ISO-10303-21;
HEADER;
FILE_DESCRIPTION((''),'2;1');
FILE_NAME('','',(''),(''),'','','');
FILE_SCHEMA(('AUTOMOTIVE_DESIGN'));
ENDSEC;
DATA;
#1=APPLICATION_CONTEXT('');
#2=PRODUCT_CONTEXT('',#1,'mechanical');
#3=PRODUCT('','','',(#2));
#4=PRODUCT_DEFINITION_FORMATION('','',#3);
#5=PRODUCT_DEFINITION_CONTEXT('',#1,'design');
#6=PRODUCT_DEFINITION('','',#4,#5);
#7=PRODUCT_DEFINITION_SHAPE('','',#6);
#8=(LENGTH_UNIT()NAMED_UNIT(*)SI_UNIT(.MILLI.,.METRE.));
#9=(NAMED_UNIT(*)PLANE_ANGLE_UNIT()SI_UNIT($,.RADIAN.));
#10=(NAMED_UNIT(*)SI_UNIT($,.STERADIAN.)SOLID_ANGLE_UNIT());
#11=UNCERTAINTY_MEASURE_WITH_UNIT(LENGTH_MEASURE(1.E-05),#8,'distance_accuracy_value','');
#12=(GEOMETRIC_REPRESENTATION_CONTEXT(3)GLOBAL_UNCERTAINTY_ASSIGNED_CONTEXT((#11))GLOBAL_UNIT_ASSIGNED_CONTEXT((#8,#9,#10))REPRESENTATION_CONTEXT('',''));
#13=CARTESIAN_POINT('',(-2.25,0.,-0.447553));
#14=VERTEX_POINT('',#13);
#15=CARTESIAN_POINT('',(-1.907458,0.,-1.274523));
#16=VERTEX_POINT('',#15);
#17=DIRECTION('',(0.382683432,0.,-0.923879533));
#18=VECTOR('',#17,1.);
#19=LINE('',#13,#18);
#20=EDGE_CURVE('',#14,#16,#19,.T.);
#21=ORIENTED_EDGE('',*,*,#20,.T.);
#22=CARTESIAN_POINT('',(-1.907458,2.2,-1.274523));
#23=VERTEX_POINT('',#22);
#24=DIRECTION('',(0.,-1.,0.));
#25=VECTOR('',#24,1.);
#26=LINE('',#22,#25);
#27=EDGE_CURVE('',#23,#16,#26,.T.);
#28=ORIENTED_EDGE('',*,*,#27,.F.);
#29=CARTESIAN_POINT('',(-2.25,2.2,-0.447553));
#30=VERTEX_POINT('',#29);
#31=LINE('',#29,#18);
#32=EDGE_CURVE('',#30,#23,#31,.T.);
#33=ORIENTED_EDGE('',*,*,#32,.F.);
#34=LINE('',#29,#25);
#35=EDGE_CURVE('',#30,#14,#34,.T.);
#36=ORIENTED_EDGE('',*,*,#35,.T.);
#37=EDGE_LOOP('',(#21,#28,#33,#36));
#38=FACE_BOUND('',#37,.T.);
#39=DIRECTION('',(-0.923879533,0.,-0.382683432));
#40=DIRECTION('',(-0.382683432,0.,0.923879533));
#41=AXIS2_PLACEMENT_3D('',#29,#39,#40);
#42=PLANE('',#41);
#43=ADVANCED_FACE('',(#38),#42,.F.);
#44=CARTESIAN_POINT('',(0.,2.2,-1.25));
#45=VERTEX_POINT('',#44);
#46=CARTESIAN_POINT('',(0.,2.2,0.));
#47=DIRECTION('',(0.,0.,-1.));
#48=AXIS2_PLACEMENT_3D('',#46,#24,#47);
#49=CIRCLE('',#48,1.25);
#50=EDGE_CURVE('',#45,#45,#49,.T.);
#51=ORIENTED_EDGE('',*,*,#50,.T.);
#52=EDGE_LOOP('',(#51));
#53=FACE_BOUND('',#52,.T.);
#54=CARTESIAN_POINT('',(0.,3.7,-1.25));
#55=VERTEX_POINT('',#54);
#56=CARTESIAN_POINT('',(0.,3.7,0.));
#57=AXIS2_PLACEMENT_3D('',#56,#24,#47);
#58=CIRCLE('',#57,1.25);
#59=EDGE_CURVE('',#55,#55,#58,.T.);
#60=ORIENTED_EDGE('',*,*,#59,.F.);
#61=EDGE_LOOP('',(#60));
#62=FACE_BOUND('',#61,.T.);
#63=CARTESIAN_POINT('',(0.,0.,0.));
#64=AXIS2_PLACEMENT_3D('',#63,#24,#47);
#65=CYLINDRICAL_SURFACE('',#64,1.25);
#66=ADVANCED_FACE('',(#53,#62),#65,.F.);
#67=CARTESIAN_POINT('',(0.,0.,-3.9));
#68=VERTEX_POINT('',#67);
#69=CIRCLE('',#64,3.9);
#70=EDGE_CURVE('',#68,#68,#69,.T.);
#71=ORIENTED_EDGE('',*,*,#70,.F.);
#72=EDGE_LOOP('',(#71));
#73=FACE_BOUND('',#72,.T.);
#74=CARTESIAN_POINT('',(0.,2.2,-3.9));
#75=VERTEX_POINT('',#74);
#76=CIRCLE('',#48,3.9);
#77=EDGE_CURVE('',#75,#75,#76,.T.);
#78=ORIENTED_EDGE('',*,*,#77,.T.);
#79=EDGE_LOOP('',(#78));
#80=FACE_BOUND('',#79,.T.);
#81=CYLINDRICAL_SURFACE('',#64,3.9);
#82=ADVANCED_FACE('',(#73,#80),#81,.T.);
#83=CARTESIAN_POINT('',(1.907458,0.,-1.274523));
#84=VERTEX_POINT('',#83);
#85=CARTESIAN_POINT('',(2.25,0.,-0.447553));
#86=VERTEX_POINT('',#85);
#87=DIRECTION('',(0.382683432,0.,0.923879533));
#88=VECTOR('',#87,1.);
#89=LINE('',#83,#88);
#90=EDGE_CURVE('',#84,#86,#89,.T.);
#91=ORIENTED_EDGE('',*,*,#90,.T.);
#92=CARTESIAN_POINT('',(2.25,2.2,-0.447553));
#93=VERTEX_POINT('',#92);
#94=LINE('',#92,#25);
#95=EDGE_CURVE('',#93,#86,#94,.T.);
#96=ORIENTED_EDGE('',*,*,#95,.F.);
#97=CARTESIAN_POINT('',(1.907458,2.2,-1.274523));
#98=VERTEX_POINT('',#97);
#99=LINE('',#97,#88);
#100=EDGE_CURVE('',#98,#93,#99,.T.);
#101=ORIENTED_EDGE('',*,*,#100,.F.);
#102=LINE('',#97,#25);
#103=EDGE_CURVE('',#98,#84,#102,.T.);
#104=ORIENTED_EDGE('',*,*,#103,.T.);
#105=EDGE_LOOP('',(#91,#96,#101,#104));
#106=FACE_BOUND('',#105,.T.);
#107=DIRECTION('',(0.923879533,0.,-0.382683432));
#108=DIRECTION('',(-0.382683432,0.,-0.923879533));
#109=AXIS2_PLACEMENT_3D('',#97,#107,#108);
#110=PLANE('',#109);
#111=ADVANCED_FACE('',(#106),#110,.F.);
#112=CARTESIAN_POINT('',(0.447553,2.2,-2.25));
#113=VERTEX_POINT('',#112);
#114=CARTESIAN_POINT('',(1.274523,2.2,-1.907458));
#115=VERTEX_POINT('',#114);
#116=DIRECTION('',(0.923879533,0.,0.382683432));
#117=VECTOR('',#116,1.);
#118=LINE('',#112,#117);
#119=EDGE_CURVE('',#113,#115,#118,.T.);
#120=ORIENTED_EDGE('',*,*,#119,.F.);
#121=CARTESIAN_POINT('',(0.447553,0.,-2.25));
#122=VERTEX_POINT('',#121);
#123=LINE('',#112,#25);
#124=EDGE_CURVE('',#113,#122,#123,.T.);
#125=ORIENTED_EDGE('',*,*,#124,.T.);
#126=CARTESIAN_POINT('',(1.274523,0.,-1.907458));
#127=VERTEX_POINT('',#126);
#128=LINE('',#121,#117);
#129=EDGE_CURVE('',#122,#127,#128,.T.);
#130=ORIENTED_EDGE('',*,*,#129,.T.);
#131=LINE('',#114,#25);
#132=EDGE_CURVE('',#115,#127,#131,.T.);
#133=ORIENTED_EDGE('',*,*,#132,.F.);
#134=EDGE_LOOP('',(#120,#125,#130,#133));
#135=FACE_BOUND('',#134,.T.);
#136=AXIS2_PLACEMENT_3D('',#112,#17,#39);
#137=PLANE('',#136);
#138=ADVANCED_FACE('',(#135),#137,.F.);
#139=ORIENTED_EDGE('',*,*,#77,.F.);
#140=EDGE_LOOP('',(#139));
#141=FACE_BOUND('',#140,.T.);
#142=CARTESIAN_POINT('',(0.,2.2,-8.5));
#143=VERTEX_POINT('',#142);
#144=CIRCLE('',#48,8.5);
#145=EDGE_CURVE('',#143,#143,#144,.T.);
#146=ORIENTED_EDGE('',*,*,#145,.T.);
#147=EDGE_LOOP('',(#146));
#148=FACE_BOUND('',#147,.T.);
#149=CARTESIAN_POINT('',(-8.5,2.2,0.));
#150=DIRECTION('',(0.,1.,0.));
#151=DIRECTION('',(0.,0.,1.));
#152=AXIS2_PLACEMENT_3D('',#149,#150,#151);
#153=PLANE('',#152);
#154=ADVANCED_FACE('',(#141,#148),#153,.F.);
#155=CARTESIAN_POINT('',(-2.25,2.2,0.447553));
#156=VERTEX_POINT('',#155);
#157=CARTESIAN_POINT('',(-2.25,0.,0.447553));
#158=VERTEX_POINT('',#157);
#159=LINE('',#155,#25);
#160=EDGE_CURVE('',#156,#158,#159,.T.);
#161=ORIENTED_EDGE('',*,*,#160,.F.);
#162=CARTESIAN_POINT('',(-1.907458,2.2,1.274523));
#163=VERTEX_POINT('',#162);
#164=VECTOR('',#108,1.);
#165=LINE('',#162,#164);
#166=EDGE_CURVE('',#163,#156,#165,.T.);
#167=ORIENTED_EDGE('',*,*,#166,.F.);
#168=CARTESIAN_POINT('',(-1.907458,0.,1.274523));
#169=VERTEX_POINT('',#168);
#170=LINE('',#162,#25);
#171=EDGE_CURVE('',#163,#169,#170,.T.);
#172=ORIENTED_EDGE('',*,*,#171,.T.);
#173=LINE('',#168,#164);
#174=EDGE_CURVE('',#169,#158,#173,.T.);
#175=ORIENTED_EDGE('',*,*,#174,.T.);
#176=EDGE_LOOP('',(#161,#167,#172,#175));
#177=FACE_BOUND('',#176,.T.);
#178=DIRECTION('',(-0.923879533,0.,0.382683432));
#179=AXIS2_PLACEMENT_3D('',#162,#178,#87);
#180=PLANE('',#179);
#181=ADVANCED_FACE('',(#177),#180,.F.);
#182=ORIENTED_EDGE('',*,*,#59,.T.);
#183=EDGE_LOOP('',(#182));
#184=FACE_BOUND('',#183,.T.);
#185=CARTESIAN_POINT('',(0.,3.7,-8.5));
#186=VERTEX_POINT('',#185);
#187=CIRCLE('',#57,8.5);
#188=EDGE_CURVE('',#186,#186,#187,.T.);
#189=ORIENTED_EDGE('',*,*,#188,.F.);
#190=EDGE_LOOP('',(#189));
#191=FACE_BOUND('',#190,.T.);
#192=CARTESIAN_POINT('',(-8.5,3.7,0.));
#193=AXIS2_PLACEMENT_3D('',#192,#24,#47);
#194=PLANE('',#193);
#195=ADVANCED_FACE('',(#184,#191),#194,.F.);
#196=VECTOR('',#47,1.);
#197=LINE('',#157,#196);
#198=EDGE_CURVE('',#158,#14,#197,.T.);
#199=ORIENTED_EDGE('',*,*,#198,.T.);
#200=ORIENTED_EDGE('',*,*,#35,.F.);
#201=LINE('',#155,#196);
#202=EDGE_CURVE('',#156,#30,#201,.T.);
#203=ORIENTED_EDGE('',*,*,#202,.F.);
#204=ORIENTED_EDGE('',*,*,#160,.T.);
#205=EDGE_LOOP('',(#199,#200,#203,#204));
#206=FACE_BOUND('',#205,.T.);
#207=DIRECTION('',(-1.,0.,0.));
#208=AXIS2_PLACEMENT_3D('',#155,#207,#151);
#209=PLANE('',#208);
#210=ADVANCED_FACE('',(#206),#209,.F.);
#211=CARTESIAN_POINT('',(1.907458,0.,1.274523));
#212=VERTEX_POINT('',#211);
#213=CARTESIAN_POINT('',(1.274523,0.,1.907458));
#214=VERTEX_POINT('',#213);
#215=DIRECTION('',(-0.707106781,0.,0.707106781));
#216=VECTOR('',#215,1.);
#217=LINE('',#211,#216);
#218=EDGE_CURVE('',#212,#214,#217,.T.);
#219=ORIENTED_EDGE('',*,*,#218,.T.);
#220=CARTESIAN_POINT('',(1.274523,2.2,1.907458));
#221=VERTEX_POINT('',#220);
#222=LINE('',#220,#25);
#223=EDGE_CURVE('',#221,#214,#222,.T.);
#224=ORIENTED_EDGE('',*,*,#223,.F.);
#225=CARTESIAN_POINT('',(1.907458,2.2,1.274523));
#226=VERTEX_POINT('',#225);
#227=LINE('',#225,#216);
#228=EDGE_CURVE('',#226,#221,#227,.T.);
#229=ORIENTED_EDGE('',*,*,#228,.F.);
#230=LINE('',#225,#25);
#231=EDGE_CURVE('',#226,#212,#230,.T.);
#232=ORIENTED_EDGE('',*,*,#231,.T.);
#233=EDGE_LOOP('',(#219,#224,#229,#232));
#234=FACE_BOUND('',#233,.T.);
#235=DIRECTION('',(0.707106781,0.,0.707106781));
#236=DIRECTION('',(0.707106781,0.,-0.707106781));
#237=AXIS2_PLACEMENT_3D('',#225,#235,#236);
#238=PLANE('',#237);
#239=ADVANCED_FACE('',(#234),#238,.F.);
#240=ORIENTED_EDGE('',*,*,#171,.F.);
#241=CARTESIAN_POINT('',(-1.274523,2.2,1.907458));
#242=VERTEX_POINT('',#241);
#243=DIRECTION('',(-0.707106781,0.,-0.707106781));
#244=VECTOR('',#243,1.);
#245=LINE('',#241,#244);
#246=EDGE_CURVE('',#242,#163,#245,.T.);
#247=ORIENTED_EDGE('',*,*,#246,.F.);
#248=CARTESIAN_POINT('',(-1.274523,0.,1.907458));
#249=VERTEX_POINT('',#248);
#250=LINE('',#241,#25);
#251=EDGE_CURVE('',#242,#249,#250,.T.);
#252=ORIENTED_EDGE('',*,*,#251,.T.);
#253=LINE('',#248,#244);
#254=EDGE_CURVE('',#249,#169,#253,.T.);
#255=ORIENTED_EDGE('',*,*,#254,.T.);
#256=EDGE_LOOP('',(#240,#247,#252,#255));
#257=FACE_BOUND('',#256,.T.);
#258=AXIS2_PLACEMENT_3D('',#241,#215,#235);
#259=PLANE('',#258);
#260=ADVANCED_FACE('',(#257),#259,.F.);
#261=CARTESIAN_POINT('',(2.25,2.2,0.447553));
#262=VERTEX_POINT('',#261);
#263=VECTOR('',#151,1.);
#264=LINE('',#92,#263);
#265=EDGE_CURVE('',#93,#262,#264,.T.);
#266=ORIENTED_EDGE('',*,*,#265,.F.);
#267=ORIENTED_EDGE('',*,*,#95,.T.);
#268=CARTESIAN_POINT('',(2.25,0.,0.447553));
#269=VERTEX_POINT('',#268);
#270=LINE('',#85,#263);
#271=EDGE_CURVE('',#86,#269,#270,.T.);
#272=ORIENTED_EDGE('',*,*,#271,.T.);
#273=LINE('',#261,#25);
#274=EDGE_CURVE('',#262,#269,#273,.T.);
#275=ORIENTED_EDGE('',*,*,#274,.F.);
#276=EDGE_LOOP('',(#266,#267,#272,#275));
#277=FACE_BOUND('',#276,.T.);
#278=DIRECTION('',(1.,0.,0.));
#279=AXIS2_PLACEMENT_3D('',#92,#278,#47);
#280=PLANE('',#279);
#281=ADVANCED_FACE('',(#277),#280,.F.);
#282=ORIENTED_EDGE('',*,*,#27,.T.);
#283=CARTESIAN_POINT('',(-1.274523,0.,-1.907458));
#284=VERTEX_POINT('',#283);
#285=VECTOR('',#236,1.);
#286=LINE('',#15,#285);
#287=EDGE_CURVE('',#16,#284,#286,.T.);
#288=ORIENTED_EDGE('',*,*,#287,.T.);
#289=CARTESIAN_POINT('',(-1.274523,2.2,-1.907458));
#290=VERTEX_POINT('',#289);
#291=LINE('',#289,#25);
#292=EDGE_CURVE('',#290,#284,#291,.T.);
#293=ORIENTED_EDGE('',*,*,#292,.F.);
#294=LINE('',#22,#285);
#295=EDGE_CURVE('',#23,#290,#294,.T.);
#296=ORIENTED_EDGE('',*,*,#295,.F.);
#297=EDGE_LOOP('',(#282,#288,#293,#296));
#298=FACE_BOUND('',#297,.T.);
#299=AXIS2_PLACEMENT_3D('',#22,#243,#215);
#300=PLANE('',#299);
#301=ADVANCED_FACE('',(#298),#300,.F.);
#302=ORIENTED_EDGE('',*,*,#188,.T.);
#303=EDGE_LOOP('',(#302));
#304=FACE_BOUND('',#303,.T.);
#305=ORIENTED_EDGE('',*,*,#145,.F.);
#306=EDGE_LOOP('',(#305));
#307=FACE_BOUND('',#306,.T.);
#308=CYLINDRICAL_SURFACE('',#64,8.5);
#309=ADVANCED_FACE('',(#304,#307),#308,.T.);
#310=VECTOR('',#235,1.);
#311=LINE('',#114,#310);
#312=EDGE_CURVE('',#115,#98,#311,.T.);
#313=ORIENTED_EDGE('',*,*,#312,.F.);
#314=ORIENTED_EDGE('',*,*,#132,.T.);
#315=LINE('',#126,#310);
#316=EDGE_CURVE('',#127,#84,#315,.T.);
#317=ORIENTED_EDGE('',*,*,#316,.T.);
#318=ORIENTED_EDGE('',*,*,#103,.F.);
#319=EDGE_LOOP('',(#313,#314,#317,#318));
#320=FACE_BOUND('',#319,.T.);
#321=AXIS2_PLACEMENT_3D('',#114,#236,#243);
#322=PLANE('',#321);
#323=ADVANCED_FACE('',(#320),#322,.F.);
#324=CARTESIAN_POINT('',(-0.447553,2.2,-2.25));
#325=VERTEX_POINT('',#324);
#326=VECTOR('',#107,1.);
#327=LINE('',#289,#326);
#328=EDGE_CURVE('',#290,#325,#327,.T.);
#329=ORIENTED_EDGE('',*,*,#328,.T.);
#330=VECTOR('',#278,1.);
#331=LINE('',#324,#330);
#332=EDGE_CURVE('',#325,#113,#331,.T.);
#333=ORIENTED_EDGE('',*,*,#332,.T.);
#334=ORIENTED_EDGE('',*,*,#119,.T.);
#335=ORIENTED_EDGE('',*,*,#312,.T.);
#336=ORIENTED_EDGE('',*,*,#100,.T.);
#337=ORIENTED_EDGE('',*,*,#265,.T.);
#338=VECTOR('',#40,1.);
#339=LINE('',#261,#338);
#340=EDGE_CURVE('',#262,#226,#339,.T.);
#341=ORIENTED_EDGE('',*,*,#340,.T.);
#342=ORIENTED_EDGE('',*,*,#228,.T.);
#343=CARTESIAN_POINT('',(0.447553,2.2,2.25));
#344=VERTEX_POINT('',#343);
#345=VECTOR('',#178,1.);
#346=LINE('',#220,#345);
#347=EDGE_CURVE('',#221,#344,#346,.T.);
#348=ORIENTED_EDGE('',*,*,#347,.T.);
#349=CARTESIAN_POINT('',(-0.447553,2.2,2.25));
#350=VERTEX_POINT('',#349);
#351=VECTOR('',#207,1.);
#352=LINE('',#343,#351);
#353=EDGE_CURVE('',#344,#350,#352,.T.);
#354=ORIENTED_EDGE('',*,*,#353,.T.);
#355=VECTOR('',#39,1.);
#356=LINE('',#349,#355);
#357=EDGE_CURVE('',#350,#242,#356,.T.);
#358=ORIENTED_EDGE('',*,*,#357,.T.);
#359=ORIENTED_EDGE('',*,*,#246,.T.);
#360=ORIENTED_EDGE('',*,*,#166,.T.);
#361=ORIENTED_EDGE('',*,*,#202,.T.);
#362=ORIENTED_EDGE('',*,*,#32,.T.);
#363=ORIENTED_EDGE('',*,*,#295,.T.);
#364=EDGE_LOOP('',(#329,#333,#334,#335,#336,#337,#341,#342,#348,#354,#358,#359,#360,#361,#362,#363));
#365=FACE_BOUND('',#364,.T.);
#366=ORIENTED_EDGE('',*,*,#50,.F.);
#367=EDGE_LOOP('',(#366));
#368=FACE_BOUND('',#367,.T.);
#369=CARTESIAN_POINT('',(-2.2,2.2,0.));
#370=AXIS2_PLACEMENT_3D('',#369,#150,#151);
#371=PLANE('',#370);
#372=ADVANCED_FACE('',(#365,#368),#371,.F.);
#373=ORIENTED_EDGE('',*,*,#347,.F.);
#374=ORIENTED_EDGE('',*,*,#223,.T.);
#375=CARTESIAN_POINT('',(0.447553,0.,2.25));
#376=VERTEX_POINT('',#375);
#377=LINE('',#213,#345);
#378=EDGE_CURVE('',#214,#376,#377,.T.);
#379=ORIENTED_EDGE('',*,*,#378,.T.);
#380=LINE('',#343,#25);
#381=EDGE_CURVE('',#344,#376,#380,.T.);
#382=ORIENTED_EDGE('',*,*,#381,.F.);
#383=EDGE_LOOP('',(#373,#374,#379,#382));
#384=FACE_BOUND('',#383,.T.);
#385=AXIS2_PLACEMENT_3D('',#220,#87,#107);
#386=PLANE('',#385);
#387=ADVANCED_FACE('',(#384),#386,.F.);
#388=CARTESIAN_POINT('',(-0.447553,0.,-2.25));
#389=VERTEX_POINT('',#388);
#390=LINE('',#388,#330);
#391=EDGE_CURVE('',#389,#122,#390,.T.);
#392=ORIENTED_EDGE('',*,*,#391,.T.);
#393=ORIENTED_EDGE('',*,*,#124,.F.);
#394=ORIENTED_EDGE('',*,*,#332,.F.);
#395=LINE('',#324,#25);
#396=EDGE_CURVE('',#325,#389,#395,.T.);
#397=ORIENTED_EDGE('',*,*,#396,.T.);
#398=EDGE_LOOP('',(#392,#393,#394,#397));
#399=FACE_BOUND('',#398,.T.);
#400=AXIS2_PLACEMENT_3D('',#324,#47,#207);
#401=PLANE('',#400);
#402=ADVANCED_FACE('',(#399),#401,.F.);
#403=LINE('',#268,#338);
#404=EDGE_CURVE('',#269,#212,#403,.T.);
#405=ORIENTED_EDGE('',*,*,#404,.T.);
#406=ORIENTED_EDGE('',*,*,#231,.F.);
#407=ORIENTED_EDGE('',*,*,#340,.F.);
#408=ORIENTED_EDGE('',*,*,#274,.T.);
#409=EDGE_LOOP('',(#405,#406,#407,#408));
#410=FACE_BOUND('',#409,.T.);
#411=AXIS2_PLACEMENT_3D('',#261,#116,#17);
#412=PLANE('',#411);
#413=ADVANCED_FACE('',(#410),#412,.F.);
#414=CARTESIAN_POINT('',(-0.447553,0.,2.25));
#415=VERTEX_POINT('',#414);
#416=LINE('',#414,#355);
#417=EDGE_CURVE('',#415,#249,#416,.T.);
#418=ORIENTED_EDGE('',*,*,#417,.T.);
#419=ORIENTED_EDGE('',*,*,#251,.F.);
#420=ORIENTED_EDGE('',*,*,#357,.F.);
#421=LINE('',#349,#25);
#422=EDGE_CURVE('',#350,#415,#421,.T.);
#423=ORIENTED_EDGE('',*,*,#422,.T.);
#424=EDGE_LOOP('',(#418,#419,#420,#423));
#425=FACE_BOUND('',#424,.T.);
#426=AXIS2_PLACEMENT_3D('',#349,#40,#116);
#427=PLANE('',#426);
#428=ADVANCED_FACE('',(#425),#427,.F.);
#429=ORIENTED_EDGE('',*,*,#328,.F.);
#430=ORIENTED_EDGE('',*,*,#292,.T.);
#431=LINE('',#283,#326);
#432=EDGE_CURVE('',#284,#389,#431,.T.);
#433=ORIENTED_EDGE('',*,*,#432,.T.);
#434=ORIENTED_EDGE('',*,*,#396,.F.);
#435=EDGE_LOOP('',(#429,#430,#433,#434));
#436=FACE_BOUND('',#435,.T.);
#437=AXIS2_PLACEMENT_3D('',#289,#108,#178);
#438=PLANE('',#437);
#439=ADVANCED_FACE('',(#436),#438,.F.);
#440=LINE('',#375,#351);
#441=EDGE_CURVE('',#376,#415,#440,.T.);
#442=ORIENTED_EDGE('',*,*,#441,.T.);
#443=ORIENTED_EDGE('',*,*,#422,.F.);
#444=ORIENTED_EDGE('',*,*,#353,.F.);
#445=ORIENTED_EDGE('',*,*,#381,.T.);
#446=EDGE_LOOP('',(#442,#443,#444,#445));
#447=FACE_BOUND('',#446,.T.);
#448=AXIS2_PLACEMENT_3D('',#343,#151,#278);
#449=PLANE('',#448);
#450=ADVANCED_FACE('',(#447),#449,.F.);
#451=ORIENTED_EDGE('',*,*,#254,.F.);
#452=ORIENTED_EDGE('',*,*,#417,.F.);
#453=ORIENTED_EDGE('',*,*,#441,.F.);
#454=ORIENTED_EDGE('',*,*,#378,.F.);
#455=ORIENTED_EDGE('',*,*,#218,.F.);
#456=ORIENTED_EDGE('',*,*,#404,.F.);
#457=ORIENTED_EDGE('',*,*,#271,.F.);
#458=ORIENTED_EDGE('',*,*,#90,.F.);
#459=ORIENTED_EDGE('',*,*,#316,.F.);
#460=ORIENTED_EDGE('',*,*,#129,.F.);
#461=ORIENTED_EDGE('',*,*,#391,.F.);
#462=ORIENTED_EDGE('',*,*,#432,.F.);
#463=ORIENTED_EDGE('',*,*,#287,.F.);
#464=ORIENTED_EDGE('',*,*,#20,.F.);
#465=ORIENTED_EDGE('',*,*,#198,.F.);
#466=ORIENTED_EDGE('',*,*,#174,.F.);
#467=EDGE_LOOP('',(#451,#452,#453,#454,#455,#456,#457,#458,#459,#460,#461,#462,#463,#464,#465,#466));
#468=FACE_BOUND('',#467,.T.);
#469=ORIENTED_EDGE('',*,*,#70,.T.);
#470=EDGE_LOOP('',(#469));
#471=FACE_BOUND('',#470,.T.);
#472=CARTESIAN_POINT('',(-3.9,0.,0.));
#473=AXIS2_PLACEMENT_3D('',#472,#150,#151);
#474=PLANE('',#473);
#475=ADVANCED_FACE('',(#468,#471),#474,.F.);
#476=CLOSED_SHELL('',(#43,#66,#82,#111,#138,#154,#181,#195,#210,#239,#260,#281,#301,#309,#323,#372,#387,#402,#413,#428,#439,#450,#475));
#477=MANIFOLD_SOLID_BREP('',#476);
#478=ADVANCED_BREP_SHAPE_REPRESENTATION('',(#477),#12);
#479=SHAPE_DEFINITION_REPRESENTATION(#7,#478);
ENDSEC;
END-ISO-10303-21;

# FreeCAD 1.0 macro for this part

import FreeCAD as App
import Part
import Sketcher
Q = App.Units.Quantity


def add_polygon(sketch, points):
    """Adds a closed chain of lines whose ends are joined by coincident constraints."""
    first, n = sketch.GeometryCount, len(points)
    for a, b in zip(points, points[1:] + points[:1]):
        sketch.addGeometry(Part.LineSegment(App.Vector(*a, 0), App.Vector(*b, 0)), False)
    for i in range(n):
        sketch.addConstraint(Sketcher.Constraint("Coincident", first + i, 2, first + (i + 1) % n, 1))

doc = App.newDocument("Part")
body = doc.addObject("PartDesign::Body", "Body")

sketch1 = doc.addObject("Sketcher::SketchObject", "Sketch")
body.addObject(sketch1)
sketch1.AttachmentSupport = (doc.XY_Plane, [""])
sketch1.MapMode = "FlatFace"
add_polygon(sketch1, [(-1.2, 3.7), (-8.5, 3.7), (-8.5, 2.2), (-3.9, 2.2), (-3.9, 0), (-2.2, 0), (-2.2, 2.2), (-1.2, 2.2)])
sketch1.addConstraint([
    Sketcher.Constraint("Horizontal", 0),
    Sketcher.Constraint("Vertical", 1),
    Sketcher.Constraint("Horizontal", 2),
    Sketcher.Constraint("Vertical", 3),
    Sketcher.Constraint("Horizontal", 4),
    Sketcher.Constraint("Vertical", 5),
    Sketcher.Constraint("Horizontal", 6),
    Sketcher.Constraint("Vertical", 7),
    Sketcher.Constraint("PointOnObject", 3, 2, -1),
    Sketcher.Constraint("Horizontal", 2, 2, 5, 2),
    Sketcher.Constraint("DistanceX", 2, 1, 2, 2, Q("4.6 mm")),
    Sketcher.Constraint("DistanceX", 4, 1, 4, 2, Q("1.7 mm")),
    Sketcher.Constraint("DistanceY", 1, 2, 1, 1, Q("1.5 mm")),
    Sketcher.Constraint("DistanceY", 3, 2, 3, 1, Q("2.2 mm")),
    Sketcher.Constraint("DistanceX", 0, 2, 0, 1, Q("7.25 mm")),
    Sketcher.Constraint("DistanceX", 0, 2, -1, 1, Q("8.5 mm")),
])
revolution = doc.addObject("PartDesign::Revolution", "Revolution")
body.addObject(revolution)
revolution.Profile = sketch1
revolution.ReferenceAxis = (sketch1, ["V_Axis"])
revolution.Angle = 360

sketch2 = doc.addObject("Sketcher::SketchObject", "Sketch001")
body.addObject(sketch2)
sketch2.AttachmentSupport = (doc.XZ_Plane, [""])
sketch2.MapMode = "FlatFace"
add_polygon(sketch2, [(1.3, -1.9), (1.9, -1.3), (2.2, -0.4), (2.2, 0.4), (1.9, 1.3), (1.3, 1.9), (0.4, 2.2), (-0.4, 2.2), (-1.3, 1.9), (-1.9, 1.3), (-2.2, 0.4), (-2.2, -0.4), (-1.9, -1.3), (-1.3, -1.9), (-0.4, -2.2), (0.4, -2.2)])
sketch2.addConstraint([
    Sketcher.Constraint("Vertical", 2),
    Sketcher.Constraint("Horizontal", 6),
    Sketcher.Constraint("Vertical", 10),
    Sketcher.Constraint("Horizontal", 14),
    Sketcher.Constraint("Symmetric", 0, 2, 8, 2, -1, 1),
    Sketcher.Constraint("Symmetric", 1, 2, 9, 2, -1, 1),
    Sketcher.Constraint("Symmetric", 3, 2, 11, 2, -1, 1),
    Sketcher.Constraint("Symmetric", 4, 2, 12, 2, -1, 1),
    Sketcher.Constraint("Symmetric", 5, 2, 13, 2, -1, 1),
    Sketcher.Constraint("Symmetric", 7, 2, 15, 2, -1, 1),
    Sketcher.Constraint("Symmetric", 4, 2, 7, 2, -2),
    Sketcher.Constraint("Symmetric", 3, 2, 8, 2, -2),
    Sketcher.Constraint("Perpendicular", 0, 4),
    Sketcher.Constraint("Perpendicular", 1, 5),
    Sketcher.Constraint("Perpendicular", 3, 7),
    Sketcher.Constraint("Perpendicular", 7, 11),
    Sketcher.Constraint("Perpendicular", 11, 15),
    Sketcher.Constraint("Horizontal", 2, 2, 9, 2),
    Sketcher.Constraint("Equal", 14, 2),
    Sketcher.Constraint("Equal", 0, 1),
    Sketcher.Constraint("Equal", 4, 5),
    Sketcher.Constraint("Angle", 1, Q("67.5 deg")),
    Sketcher.Constraint("DistanceX", -1, 1, 1, 2, Q("2.25 mm")),
    Sketcher.Constraint("DistanceX", 6, 2, 6, 1, Q("0.895106 mm")),
])
pocket1 = doc.addObject("PartDesign::Pocket", "Pocket")
body.addObject(pocket1)
pocket1.Profile = sketch2
pocket1.Length = 2.2

doc.recompute()
